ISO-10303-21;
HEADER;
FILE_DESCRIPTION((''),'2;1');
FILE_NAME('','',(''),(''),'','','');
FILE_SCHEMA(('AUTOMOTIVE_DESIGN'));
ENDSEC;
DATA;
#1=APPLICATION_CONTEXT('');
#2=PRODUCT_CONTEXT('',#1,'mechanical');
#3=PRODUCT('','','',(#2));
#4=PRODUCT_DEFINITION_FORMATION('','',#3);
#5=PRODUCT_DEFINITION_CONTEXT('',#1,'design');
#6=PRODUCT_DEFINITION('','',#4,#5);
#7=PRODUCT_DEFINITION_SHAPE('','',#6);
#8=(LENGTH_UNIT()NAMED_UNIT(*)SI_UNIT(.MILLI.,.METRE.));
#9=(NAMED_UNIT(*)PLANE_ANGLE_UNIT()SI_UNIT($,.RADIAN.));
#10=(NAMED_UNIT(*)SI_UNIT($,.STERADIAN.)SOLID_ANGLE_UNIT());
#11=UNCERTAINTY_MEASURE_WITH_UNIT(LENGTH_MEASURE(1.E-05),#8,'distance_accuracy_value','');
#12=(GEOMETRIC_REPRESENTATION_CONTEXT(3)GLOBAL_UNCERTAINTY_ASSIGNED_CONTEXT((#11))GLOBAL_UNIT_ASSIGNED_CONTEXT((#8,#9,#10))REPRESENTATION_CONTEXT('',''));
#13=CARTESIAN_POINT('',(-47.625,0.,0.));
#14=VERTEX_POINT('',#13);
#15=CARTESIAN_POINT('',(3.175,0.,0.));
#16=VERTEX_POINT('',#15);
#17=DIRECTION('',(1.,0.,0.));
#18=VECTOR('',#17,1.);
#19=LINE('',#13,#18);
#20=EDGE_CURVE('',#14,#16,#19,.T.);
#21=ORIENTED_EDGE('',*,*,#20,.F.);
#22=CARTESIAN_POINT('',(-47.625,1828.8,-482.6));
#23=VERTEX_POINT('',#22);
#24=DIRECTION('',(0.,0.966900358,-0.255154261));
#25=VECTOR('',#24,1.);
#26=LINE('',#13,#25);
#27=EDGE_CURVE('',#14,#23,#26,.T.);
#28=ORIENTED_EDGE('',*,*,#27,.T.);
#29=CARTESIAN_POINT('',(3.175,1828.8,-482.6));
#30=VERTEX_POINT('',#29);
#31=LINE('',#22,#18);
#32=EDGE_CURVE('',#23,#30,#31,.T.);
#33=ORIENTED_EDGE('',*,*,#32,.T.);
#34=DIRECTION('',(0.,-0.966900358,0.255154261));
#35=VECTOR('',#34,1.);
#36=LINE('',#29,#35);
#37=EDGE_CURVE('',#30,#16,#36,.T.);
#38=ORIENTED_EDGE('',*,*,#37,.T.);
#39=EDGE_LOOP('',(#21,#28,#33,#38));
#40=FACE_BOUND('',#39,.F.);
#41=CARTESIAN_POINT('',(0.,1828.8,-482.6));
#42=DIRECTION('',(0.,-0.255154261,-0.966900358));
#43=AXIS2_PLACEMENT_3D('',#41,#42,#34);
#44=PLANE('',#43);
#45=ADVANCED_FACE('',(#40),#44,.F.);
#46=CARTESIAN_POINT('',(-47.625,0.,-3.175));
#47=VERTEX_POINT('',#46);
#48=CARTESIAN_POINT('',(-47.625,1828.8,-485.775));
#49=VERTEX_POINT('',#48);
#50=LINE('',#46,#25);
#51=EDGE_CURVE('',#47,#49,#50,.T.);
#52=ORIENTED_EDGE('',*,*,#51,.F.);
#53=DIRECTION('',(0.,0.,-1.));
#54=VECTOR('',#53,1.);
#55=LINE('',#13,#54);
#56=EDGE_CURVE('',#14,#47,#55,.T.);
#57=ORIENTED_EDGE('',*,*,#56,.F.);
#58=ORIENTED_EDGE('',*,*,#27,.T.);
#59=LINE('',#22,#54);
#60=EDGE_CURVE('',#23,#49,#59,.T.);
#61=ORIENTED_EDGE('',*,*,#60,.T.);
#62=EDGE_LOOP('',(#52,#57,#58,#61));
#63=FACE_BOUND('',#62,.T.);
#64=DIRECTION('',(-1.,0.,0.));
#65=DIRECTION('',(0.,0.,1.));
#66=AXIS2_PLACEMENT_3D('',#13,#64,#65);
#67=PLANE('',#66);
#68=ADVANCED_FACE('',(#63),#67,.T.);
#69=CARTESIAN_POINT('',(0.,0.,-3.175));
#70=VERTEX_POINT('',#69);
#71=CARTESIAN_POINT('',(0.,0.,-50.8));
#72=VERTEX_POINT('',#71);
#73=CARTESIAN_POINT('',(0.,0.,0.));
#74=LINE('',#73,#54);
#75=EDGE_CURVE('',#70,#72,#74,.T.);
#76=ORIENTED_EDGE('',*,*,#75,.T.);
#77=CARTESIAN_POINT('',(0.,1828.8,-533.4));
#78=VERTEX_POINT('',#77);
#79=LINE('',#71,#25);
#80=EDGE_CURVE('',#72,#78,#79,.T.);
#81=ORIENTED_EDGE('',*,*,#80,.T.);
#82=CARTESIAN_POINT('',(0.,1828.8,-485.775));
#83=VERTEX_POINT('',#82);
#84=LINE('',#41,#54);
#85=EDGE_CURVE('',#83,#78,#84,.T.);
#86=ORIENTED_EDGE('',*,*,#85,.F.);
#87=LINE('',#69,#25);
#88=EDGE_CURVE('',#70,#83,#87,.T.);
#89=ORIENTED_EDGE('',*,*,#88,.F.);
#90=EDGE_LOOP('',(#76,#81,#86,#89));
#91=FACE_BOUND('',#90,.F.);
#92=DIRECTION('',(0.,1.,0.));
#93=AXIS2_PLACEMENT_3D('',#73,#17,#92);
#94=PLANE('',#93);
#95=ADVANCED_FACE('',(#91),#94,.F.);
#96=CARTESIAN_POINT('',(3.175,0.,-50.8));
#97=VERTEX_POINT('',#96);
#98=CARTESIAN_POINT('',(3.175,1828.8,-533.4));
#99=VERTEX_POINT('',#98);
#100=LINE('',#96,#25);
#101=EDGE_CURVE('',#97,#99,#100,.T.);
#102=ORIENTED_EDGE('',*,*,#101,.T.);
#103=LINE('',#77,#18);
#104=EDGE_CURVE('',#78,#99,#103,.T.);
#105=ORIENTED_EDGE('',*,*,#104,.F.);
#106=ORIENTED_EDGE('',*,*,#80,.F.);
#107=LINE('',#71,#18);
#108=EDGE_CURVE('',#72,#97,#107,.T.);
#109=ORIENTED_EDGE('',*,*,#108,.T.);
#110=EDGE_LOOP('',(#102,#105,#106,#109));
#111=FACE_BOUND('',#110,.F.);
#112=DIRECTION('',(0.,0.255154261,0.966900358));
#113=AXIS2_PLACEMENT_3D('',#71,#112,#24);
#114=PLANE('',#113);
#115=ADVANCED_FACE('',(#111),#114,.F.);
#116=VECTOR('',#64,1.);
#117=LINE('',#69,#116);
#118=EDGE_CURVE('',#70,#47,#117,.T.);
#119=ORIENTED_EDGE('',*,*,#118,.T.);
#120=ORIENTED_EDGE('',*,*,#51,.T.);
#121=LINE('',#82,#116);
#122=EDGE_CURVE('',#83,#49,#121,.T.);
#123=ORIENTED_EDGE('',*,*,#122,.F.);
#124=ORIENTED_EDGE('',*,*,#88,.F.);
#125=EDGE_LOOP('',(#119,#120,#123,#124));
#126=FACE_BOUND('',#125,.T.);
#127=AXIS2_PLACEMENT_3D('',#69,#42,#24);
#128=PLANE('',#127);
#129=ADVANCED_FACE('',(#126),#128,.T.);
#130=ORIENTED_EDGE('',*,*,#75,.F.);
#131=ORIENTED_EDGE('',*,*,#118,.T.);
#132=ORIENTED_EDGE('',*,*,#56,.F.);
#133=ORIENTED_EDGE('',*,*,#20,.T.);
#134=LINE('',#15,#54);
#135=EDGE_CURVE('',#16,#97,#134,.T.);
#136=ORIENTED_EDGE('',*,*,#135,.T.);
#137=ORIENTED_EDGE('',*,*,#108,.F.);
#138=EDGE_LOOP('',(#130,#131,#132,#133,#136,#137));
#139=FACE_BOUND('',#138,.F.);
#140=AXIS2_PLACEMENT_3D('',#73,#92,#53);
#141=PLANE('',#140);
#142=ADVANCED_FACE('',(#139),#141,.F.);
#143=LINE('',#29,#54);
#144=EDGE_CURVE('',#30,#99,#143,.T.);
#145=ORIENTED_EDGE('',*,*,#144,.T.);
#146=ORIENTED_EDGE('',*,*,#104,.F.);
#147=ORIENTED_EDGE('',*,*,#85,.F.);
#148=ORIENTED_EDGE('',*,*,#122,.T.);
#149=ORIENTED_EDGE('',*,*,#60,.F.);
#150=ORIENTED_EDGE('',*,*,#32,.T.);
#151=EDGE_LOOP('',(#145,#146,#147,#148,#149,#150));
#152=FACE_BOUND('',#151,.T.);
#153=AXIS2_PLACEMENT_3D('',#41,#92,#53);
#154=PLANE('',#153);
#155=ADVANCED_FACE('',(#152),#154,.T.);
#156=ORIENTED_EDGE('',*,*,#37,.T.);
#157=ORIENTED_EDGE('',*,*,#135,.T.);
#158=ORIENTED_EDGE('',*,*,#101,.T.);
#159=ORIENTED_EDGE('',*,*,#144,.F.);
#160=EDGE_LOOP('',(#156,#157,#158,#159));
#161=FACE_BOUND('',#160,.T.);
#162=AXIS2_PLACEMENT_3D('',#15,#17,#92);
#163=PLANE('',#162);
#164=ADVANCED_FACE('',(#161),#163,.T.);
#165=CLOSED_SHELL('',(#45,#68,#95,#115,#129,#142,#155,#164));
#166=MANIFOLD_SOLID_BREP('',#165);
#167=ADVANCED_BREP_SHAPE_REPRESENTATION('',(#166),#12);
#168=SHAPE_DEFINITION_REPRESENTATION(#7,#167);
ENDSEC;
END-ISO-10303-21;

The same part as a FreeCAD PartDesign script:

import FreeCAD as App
import Part
import Sketcher
from FreeCAD import Vector
Q = App.Units.Quantity


def add_polygon(sketch, points):
    """Adds a closed chain of lines whose ends are joined by coincident constraints."""
    first, n = sketch.GeometryCount, len(points)
    for a, b in zip(points, points[1:] + points[:1]):
        sketch.addGeometry(Part.LineSegment(App.Vector(*a, 0), App.Vector(*b, 0)), False)
    for i in range(n):
        sketch.addConstraint(Sketcher.Constraint("Coincident", first + i, 2, first + (i + 1) % n, 1))

doc = App.newDocument("Part")
params = doc.addObject("Spreadsheet::Sheet", "Params")
for row, (alias, value) in enumerate([
    ("sketch1_height", "2 in"),
    ("pad1_length", "0.125 in"),
    ("sketch2_height", "0.125 in"),
    ("pad2_length", "1.875 in"),
], start=1):
    params.set(f"A{row}", alias)
    params.set(f"B{row}", "=" + value)
    params.setAlias(f"B{row}", alias)

body = doc.addObject("PartDesign::Body", "Body")

sketch1 = body.newObject("Sketcher::SketchObject", "Sketch")
sketch1.AttachmentSupport = (doc.getObject("YZ_Plane"), [""])
sketch1.MapMode = "FlatFace"
add_polygon(sketch1, [(1829, -533), (1829, -483), (0, 0), (0, -51)])
sketch1.addConstraint(Sketcher.Constraint("Vertical", 0))
sketch1.addConstraint(Sketcher.Constraint("Vertical", 2))
sketch1.addConstraint(Sketcher.Constraint("Coincident", 1, 2, -1, 1))
sketch1.addConstraint(Sketcher.Constraint("Parallel", 1, 3))
sketch1.addConstraint(Sketcher.Constraint("DistanceY", 0, 1, 0, 2, Q("2 in")))
sketch1.addConstraint(Sketcher.Constraint("DistanceX", -1, 1, 0, 2, Q("72 in")))
sketch1.addConstraint(Sketcher.Constraint("DistanceY", 0, 2, -1, 1, Q("19 in")))
sketch1.setExpression("Constraints[8]", "Params.sketch1_height")
pad1 = body.newObject("PartDesign::Pad", "Pad")
pad1.Profile = sketch1
pad1.setExpression("Length", "Params.pad1_length")

sketch2 = body.newObject("Sketcher::SketchObject", "Sketch001")
sketch2.AttachmentSupport = (doc.getObject("YZ_Plane"), [""])
sketch2.MapMode = "FlatFace"
add_polygon(sketch2, [(0, -3.2), (0, 0), (1828.8, -482.6), (1828.8, -485.8)])
sketch2.addConstraint(Sketcher.Constraint("Vertical", 0))
sketch2.addConstraint(Sketcher.Constraint("Vertical", 2))
sketch2.addConstraint(Sketcher.Constraint("Coincident", 0, 2, -1, 1))
sketch2.addConstraint(Sketcher.Constraint("Parallel", 1, 3))
sketch2.addConstraint(Sketcher.Constraint("DistanceY", 0, 1, 0, 2, Q("0.125 in")))
sketch2.addConstraint(Sketcher.Constraint("DistanceX", -1, 1, 1, 2, Q("72 in")))
sketch2.addConstraint(Sketcher.Constraint("DistanceY", 1, 2, -1, 1, Q("19 in")))
sketch2.setExpression("Constraints[8]", "Params.sketch2_height")
pad2 = body.newObject("PartDesign::Pad", "Pad001")
pad2.Profile = sketch2
pad2.setExpression("Length", "Params.pad2_length")
pad2.Reversed = True

doc.recompute()
